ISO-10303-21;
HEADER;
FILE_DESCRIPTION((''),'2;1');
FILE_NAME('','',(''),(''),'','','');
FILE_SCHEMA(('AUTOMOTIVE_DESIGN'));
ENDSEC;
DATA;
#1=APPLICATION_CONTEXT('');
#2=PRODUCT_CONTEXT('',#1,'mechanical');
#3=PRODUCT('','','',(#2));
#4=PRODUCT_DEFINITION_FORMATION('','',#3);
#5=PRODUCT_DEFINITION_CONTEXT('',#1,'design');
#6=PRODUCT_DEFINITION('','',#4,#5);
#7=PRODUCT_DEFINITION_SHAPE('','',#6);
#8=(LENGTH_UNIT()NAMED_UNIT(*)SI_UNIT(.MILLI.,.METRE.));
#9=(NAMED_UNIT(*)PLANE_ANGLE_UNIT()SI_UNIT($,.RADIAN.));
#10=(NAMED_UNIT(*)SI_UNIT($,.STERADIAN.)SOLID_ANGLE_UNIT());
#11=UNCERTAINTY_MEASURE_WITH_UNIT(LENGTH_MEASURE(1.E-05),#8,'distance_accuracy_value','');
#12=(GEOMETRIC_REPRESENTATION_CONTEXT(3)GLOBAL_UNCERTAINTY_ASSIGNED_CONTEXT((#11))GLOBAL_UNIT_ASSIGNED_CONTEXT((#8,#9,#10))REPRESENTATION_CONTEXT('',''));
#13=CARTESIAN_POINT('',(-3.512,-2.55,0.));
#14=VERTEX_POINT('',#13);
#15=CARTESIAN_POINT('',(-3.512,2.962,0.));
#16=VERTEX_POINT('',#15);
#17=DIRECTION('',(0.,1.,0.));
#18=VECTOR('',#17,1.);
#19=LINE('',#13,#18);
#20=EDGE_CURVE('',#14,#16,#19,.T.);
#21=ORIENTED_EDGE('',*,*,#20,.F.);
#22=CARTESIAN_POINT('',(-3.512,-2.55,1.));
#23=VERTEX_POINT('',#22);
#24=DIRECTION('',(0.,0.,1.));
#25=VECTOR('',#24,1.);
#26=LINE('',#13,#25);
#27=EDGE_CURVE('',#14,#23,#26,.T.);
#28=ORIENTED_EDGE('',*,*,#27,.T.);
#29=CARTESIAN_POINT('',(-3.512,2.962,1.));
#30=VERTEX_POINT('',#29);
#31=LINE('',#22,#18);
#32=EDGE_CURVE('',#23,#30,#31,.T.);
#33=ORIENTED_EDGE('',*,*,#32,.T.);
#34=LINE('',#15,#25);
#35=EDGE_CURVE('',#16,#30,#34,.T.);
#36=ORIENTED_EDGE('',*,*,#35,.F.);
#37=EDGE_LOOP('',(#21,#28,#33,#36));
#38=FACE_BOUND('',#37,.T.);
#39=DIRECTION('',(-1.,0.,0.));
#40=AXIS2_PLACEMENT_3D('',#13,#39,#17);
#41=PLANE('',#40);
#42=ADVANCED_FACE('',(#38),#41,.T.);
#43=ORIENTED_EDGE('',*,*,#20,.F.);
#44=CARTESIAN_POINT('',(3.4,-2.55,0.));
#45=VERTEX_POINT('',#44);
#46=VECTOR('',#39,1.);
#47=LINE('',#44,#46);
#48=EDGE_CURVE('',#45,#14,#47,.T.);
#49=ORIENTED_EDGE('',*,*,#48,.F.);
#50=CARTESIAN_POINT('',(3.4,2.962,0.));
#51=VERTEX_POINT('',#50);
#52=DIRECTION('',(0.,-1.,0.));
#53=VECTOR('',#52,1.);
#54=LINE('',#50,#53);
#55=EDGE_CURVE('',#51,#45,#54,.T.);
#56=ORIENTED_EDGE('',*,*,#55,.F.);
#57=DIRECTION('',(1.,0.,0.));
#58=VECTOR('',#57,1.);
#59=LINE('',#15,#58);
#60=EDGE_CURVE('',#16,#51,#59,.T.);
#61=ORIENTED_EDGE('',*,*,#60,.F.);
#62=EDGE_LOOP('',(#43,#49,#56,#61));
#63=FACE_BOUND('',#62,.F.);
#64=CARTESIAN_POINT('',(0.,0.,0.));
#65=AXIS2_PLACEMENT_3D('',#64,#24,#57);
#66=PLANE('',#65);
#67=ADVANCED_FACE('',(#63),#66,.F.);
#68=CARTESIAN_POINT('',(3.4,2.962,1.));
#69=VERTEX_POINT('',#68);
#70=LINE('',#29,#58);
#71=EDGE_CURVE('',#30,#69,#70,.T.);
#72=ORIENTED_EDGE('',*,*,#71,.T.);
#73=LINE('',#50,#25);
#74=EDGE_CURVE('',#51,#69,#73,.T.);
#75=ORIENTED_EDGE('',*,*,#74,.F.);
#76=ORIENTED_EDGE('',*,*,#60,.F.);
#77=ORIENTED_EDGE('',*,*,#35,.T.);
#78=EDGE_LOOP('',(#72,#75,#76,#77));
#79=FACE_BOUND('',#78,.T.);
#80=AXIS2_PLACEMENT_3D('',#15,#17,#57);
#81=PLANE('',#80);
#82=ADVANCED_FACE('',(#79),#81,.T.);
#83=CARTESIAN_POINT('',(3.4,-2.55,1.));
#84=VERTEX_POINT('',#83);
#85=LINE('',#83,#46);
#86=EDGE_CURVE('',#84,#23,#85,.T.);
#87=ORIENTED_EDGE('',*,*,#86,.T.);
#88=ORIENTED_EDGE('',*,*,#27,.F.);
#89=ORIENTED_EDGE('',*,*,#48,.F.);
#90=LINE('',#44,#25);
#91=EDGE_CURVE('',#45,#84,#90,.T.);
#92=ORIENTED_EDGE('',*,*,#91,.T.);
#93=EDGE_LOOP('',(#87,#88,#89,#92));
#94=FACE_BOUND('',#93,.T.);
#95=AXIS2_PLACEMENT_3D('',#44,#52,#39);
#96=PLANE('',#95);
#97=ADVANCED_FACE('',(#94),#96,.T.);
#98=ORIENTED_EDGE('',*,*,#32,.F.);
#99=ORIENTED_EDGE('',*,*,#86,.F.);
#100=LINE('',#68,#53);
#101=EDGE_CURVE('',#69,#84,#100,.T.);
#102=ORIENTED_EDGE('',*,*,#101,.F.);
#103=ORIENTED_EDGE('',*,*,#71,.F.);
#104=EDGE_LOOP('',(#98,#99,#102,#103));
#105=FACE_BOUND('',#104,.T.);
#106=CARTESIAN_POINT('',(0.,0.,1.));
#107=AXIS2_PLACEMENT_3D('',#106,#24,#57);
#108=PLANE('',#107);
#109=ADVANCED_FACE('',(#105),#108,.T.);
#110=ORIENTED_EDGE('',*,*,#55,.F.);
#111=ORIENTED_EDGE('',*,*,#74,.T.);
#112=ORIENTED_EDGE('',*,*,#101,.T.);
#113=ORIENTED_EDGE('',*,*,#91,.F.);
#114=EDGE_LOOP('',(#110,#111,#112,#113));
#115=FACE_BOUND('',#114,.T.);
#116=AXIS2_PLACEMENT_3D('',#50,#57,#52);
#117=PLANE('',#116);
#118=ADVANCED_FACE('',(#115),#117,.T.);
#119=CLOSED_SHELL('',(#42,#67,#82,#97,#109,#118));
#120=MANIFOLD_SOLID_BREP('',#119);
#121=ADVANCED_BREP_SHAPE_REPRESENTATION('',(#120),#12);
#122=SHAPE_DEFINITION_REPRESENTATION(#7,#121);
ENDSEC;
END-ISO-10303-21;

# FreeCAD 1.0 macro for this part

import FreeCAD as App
import Part
import Sketcher
from FreeCAD import Vector
Q = App.Units.Quantity

doc = App.newDocument("Part")
body = doc.addObject("PartDesign::Body", "Body")

# Sketch on XY plane
sketch1 = body.newObject("Sketcher::SketchObject", "Sketch")
sketch1.AttachmentSupport = (doc.getObject("XY_Plane"), [""])
sketch1.MapMode = "FlatFace"
sketch1.addGeometry(Part.LineSegment(Vector(-3.512, 2.962, 0), Vector(-3.512, -2.55, 0)), False)
sketch1.addGeometry(Part.LineSegment(Vector(-3.512, -2.55, 0), Vector(3.4, -2.55, 0)), False)
sketch1.addGeometry(Part.LineSegment(Vector(3.4, -2.55, 0), Vector(3.4, 2.962, 0)), False)
sketch1.addGeometry(Part.LineSegment(Vector(3.4, 2.962, 0), Vector(-3.512, 2.962, 0)), False)
sketch1.addConstraint(Sketcher.Constraint("Coincident", 0, 2, 1, 1))
sketch1.addConstraint(Sketcher.Constraint("Coincident", 1, 2, 2, 1))
sketch1.addConstraint(Sketcher.Constraint("Coincident", 2, 2, 3, 1))
sketch1.addConstraint(Sketcher.Constraint("Coincident", 3, 2, 0, 1))
sketch1.addConstraint(Sketcher.Constraint("Vertical", 0))
sketch1.addConstraint(Sketcher.Constraint("Horizontal", 1))
sketch1.addConstraint(Sketcher.Constraint("Vertical", 2))
sketch1.addConstraint(Sketcher.Constraint("Horizontal", 3))
sketch1.addConstraint(Sketcher.Constraint("DistanceX", -1, 1, 1, 2, Q("3.4 mm")))
sketch1.addConstraint(Sketcher.Constraint("DistanceX", 1, 1, 1, 2, Q("6.912 mm")))
sketch1.addConstraint(Sketcher.Constraint("DistanceY", 0, 2, 0, 1, Q("5.512 mm")))
sketch1.addConstraint(Sketcher.Constraint("DistanceY", 0, 2, -1, 1, Q("2.55 mm")))
pad1 = body.newObject("PartDesign::Pad", "Pad")
pad1.Profile = sketch1
pad1.Length = 1

doc.recompute()
